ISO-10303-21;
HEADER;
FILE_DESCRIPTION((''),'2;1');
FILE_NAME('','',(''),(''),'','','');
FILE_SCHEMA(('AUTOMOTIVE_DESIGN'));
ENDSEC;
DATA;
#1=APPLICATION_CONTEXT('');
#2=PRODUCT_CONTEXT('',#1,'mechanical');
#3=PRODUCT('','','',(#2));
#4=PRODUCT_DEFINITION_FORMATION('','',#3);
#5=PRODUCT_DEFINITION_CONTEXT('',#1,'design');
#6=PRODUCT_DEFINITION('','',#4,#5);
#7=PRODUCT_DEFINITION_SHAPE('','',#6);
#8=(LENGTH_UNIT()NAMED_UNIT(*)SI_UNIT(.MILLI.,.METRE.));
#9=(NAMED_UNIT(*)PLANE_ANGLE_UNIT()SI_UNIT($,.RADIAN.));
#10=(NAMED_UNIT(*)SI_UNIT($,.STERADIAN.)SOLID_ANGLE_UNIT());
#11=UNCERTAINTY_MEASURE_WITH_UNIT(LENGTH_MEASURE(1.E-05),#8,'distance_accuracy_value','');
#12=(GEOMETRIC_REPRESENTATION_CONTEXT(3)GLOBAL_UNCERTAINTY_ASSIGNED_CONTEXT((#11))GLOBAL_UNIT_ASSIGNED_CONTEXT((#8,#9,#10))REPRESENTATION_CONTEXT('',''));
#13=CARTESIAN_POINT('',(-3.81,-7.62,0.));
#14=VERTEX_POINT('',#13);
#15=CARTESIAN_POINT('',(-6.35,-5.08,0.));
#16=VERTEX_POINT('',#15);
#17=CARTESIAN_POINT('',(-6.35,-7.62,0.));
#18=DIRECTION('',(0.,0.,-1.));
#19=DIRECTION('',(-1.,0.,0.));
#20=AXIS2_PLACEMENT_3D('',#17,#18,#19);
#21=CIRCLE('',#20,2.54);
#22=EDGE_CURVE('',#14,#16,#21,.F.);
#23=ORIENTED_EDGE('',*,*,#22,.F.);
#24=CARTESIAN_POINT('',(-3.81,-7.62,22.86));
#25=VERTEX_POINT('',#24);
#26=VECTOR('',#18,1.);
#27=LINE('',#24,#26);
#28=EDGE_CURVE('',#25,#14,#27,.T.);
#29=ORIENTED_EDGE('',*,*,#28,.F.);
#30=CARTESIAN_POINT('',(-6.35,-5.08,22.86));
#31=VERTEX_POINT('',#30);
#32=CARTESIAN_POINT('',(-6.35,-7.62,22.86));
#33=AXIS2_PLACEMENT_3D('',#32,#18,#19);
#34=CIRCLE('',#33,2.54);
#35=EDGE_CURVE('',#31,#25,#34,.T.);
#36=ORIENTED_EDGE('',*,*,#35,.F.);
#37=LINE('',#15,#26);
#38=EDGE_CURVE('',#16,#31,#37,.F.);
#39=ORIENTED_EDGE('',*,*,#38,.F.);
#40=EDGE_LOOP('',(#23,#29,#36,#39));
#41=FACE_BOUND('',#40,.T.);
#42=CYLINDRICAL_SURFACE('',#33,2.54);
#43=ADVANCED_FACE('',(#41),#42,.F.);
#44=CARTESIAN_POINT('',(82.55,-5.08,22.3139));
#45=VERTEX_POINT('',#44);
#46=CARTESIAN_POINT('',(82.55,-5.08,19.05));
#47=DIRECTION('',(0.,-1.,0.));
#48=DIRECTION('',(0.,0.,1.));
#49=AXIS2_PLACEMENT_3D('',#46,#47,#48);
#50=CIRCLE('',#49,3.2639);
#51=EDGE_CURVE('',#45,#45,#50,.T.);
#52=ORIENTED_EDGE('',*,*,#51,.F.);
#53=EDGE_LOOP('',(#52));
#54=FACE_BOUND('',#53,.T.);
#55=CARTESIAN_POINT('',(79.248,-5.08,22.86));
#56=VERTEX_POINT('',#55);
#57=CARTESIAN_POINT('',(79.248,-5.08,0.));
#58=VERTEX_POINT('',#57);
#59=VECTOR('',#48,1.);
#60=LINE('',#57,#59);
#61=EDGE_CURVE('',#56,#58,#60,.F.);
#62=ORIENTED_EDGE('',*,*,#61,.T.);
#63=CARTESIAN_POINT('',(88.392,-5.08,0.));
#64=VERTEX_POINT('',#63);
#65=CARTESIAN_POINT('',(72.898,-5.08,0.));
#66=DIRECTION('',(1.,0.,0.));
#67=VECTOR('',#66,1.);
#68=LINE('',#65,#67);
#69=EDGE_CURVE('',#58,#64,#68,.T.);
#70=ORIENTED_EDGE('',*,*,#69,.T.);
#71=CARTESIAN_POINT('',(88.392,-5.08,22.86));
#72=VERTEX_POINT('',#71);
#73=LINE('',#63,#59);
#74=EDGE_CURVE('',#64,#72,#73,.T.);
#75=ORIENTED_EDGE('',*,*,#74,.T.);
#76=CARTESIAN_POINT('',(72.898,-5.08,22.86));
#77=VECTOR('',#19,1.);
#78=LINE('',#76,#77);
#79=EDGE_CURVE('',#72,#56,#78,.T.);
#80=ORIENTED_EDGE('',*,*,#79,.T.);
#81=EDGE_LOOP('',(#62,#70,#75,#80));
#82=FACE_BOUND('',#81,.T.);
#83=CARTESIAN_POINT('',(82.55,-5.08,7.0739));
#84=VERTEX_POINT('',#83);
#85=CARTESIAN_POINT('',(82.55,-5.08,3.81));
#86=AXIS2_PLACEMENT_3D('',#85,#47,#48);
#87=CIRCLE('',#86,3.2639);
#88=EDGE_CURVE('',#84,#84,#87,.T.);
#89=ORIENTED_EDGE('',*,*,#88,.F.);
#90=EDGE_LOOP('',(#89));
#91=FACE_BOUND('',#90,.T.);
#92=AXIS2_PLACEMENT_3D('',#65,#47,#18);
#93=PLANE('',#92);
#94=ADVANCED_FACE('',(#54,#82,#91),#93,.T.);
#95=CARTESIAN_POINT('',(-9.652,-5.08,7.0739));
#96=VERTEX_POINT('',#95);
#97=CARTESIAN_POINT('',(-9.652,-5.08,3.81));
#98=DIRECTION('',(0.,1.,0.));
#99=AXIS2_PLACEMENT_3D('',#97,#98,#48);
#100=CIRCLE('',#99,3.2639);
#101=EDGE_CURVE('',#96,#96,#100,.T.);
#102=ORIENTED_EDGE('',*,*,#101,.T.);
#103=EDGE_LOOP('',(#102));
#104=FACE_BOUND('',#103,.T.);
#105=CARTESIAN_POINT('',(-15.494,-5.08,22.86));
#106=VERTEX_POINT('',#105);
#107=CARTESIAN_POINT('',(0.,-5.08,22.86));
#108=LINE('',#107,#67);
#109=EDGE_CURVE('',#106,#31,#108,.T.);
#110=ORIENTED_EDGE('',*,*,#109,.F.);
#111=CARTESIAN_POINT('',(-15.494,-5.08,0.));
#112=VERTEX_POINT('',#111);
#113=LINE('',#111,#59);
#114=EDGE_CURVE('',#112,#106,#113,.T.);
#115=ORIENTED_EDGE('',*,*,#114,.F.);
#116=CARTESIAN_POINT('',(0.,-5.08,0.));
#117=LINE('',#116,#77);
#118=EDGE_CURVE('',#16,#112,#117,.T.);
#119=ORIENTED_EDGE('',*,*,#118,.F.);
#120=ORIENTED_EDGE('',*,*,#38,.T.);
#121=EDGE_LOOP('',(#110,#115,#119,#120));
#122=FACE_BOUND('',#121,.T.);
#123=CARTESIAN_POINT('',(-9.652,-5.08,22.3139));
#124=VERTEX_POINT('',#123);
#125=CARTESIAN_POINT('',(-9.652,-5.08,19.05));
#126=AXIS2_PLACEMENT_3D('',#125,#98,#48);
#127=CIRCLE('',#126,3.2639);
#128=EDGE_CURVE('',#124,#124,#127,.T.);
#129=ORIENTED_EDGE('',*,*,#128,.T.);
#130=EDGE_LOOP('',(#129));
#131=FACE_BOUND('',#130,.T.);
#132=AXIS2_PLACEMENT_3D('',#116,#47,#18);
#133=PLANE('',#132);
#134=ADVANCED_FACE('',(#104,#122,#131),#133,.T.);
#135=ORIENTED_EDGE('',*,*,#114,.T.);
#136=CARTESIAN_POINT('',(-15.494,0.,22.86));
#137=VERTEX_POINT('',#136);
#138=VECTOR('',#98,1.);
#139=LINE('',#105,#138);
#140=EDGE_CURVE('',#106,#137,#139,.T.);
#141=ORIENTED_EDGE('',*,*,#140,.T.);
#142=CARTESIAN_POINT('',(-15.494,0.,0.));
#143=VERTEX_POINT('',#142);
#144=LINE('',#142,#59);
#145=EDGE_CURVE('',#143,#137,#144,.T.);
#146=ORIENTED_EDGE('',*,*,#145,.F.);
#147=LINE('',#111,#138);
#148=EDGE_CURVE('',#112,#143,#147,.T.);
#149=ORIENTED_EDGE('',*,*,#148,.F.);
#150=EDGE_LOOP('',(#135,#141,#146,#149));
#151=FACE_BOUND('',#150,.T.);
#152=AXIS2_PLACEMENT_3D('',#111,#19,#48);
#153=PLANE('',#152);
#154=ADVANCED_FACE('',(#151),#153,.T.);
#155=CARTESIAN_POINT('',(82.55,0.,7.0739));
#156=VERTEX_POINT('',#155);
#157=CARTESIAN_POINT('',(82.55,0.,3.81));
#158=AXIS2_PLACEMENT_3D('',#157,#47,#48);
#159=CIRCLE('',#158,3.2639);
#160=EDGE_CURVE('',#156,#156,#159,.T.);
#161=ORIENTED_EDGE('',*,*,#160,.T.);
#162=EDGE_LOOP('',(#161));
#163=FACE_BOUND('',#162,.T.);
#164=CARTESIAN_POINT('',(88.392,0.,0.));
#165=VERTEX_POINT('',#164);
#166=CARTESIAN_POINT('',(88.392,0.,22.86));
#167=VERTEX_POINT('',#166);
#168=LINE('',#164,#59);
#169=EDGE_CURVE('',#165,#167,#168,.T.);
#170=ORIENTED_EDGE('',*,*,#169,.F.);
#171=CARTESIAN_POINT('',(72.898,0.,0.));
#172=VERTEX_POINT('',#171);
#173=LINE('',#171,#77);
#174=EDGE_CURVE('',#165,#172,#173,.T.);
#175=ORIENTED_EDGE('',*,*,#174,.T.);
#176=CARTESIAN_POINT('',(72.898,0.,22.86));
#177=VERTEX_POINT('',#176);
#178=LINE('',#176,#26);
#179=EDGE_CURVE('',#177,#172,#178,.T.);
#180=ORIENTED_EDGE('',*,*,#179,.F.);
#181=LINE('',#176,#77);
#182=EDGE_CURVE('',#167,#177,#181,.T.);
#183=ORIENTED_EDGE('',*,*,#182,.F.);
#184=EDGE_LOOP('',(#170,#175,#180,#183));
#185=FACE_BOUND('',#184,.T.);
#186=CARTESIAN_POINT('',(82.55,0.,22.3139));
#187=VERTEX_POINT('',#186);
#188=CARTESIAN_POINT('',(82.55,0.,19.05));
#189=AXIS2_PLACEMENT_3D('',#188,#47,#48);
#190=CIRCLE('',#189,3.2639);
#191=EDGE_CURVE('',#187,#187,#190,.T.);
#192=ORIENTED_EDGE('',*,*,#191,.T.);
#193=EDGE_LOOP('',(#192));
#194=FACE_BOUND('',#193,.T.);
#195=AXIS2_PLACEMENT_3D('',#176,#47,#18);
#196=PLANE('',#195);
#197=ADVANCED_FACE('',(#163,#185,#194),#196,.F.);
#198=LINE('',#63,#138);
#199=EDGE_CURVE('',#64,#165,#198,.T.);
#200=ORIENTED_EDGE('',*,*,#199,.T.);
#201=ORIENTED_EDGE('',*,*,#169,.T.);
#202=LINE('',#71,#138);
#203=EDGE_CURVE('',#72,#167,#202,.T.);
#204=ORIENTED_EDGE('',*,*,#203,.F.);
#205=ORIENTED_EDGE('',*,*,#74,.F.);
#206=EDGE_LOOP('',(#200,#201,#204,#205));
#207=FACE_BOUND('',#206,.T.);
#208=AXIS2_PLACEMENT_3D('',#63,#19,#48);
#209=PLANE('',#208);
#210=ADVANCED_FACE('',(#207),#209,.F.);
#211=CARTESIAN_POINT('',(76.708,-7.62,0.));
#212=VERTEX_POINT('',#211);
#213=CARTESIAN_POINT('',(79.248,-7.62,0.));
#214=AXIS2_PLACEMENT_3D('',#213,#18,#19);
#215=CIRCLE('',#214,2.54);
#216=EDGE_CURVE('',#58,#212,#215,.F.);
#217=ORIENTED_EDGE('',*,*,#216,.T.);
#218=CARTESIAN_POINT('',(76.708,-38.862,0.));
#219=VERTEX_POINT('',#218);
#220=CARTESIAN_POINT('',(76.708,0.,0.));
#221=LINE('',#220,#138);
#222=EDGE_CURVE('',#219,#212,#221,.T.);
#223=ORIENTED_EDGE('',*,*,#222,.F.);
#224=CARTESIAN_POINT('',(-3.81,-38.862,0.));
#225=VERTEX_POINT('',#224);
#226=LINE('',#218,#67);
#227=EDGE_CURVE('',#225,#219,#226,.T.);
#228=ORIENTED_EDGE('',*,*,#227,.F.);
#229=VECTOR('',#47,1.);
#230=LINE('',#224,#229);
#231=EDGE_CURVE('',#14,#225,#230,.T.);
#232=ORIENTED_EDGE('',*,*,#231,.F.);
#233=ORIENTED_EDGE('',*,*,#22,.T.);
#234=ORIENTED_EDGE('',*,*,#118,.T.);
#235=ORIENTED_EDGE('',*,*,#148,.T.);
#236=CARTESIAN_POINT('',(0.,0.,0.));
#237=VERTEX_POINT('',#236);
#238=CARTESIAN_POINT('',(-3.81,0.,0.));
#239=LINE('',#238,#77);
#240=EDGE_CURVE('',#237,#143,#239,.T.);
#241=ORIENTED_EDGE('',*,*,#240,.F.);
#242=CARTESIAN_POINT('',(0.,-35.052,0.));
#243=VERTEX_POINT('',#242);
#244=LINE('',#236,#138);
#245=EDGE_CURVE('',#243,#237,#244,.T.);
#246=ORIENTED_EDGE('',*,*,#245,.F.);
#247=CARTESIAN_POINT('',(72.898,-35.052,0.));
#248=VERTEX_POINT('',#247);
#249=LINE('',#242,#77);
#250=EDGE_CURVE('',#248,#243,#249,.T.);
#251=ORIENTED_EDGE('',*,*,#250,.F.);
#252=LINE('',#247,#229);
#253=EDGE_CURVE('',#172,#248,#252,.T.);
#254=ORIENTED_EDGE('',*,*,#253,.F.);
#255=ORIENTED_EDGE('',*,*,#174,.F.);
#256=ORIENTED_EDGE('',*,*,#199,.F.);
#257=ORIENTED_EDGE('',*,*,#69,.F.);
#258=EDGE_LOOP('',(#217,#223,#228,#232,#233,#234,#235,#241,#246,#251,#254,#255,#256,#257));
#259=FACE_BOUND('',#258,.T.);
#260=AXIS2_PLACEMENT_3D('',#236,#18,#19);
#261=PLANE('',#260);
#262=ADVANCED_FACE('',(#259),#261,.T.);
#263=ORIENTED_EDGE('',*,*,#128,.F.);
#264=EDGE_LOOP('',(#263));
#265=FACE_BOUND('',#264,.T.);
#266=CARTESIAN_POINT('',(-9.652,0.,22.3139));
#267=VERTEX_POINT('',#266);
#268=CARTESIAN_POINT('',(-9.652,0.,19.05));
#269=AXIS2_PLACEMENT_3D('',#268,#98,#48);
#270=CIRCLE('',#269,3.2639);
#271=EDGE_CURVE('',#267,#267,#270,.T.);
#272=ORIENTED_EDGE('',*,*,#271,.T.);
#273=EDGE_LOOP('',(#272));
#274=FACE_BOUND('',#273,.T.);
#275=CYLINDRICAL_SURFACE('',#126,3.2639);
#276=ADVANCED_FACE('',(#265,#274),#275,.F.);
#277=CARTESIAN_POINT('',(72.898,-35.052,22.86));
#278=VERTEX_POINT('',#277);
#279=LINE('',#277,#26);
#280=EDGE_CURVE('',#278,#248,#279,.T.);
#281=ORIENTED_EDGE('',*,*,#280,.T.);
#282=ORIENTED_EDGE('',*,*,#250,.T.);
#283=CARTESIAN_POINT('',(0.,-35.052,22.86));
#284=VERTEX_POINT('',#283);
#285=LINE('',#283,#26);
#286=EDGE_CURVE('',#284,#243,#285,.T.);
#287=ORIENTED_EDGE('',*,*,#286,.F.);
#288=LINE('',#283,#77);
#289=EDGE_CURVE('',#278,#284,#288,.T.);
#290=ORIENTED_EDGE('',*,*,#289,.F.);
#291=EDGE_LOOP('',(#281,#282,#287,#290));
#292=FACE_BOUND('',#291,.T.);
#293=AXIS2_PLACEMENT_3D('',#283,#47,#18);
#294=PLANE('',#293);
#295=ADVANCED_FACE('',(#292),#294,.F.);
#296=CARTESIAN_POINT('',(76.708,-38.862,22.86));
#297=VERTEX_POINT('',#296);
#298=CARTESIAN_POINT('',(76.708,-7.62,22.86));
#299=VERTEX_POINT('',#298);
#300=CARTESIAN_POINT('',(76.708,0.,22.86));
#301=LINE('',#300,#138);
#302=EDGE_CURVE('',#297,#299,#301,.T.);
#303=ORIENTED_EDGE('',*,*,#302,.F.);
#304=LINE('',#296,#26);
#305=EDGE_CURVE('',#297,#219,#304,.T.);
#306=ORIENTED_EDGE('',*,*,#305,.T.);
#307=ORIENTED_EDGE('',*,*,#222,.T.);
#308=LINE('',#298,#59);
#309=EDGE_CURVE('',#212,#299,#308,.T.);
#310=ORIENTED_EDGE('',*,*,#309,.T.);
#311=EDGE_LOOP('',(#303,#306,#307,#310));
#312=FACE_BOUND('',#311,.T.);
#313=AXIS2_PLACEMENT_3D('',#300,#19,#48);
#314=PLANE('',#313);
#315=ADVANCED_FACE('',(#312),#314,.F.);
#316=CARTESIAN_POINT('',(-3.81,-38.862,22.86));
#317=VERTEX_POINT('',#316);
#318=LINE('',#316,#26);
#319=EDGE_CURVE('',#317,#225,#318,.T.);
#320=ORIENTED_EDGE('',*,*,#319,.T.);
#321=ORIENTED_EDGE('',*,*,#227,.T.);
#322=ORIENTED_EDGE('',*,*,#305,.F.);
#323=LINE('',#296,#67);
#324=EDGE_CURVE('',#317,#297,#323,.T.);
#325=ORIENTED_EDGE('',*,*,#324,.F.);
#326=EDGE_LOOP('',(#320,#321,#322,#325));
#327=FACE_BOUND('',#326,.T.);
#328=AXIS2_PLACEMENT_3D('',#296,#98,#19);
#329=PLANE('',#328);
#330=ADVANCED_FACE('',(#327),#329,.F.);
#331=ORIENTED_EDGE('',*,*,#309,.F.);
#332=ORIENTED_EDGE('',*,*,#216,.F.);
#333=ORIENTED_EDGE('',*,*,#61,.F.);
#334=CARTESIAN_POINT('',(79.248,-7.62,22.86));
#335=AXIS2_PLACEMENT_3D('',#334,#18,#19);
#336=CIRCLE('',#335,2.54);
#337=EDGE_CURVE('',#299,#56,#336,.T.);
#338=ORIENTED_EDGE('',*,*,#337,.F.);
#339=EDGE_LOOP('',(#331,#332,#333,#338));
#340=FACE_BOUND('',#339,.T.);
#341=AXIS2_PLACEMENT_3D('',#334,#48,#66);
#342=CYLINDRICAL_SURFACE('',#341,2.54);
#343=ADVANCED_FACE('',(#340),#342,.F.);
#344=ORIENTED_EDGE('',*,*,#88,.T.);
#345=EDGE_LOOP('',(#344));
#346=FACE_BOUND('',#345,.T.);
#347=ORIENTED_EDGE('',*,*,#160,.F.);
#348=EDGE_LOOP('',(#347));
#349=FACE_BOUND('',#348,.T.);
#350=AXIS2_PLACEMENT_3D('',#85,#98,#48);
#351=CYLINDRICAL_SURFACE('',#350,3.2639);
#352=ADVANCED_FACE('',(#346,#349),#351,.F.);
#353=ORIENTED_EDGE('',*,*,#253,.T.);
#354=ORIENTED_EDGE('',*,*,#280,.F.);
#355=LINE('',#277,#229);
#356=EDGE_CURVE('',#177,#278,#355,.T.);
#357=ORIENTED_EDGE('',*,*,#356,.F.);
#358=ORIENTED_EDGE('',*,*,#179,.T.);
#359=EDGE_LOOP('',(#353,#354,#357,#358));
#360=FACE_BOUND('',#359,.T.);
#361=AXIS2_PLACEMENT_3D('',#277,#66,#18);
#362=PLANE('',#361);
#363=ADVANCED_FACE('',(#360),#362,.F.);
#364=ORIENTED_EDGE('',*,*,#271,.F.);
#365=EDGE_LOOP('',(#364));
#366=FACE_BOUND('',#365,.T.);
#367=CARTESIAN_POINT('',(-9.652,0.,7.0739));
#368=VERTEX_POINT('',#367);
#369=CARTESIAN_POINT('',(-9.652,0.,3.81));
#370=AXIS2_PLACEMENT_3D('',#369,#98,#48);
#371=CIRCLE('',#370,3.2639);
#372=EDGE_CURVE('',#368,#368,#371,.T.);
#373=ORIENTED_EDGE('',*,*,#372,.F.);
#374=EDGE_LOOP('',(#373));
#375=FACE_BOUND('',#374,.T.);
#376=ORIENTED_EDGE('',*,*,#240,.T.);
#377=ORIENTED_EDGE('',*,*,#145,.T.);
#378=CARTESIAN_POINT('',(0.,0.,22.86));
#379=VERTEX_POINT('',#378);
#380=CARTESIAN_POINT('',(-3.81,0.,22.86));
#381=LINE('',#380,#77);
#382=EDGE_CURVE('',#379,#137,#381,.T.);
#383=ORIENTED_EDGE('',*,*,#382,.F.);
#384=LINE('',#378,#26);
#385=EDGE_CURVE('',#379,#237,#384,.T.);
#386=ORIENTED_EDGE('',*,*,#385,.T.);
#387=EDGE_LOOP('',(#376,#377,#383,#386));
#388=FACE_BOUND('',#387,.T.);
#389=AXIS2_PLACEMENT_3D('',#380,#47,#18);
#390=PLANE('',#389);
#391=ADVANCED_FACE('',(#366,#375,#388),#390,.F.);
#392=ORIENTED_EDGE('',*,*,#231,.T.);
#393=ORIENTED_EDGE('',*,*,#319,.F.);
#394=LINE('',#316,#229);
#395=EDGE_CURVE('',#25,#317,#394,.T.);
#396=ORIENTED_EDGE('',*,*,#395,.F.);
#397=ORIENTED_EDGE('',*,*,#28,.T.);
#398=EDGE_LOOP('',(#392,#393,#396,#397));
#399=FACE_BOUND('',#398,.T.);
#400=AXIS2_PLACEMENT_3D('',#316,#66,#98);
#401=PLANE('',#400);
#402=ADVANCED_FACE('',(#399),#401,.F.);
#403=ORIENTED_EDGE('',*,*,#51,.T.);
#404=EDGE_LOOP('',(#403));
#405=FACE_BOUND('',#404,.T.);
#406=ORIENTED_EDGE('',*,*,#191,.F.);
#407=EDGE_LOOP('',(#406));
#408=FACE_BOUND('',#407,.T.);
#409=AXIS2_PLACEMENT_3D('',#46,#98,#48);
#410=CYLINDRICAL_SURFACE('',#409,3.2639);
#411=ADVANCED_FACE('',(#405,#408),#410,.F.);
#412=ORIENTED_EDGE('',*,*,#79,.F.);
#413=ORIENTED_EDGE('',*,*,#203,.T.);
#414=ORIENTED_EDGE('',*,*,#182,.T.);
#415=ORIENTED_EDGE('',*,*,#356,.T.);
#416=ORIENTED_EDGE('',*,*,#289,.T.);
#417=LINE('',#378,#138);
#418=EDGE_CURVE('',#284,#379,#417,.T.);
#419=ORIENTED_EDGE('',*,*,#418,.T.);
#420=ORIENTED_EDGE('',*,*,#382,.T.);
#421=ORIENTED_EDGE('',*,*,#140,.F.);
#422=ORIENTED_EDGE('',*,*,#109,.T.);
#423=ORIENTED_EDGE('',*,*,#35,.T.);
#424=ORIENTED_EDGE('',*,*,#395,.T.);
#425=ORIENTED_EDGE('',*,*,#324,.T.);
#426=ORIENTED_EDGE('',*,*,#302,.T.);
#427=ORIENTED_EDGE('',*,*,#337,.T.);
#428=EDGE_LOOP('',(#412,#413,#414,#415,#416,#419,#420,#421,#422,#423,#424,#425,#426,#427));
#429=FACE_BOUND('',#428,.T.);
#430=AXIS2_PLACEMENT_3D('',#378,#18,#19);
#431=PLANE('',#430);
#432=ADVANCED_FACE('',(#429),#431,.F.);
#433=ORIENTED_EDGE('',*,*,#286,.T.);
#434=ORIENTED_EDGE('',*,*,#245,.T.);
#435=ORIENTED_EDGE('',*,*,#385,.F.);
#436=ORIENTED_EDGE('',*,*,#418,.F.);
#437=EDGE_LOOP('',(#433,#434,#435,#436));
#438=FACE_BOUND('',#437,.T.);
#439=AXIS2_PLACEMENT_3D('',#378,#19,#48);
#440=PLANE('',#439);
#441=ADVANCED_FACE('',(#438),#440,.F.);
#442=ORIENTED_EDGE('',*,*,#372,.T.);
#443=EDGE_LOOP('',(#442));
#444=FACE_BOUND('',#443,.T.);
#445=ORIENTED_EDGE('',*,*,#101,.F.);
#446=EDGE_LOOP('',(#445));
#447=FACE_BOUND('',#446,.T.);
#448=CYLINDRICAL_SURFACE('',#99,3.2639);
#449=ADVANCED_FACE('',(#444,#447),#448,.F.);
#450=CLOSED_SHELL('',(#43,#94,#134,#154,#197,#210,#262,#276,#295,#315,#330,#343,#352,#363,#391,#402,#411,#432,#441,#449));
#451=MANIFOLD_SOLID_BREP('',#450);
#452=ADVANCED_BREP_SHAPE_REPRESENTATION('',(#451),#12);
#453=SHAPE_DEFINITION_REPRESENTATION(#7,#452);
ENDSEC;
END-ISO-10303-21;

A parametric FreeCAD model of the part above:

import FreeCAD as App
import Part
import Sketcher
from FreeCAD import Vector
Q = App.Units.Quantity


def edges_at(feature, points):
    """Names of the edges that pass closest to the given points."""
    edges = feature.Shape.Edges
    near = lambda p: min(range(len(edges)), key=lambda i: edges[i].distToShape(Part.Vertex(*p))[0])
    return sorted({f"Edge{near(p) + 1}" for p in points})


def add_polygon(sketch, points):
    """Adds a closed chain of lines whose ends are joined by coincident constraints."""
    first, n = sketch.GeometryCount, len(points)
    for a, b in zip(points, points[1:] + points[:1]):
        sketch.addGeometry(Part.LineSegment(App.Vector(*a, 0), App.Vector(*b, 0)), False)
    for i in range(n):
        sketch.addConstraint(Sketcher.Constraint("Coincident", first + i, 2, first + (i + 1) % n, 1))

doc = App.newDocument("Part")
body = doc.addObject("PartDesign::Body", "Body")

# Sketch on XY plane
sketch1 = body.newObject("Sketcher::SketchObject", "Sketch")
sketch1.AttachmentSupport = (doc.getObject("XY_Plane"), [""])
sketch1.MapMode = "FlatFace"
add_polygon(sketch1, [(0, -35.1), (0, 0), (-3.8, 0), (-3.8, -38.9), (76.7, -38.9), (76.7, 0), (72.9, 0), (72.9, -35.1)])  # lines 0-7
sketch1.addConstraint([
    Sketcher.Constraint("Vertical", 0),
    Sketcher.Constraint("Horizontal", 1),
    Sketcher.Constraint("Vertical", 2),
    Sketcher.Constraint("Horizontal", 3),
    Sketcher.Constraint("Vertical", 4),
    Sketcher.Constraint("Horizontal", 5),
    Sketcher.Constraint("Vertical", 6),
    Sketcher.Constraint("Horizontal", 7),
    Sketcher.Constraint("Coincident", 0, 2, -1, 1),
    Sketcher.Constraint("PointOnObject", 4, 2, -1),
    Sketcher.Constraint("Equal", 1, 5),
    Sketcher.Constraint("DistanceX", 1, 2, 1, 1, Q("0.15 in")),
    Sketcher.Constraint("DistanceX", 3, 1, 3, 2, Q("3.17 in")),
    Sketcher.Constraint("DistanceY", 0, 1, 0, 2, Q("1.38 in")),
    Sketcher.Constraint("DistanceY", 2, 2, 2, 1, Q("1.53 in")),
])
pad1 = body.newObject("PartDesign::Pad", "Pad")
pad1.Profile = sketch1
pad1.Length = Q("0.9 in")

# Sketch on XZ plane
sketch2 = body.newObject("Sketcher::SketchObject", "Sketch001")
sketch2.AttachmentSupport = (doc.getObject("XZ_Plane"), [""])
sketch2.MapMode = "FlatFace"
add_polygon(sketch2, [(-15.5, 0), (-15.5, 22.9), (0, 22.9), (0, 0)])  # lines 0-3
sketch2.addGeometry(Part.Circle(Vector(-9.7, 19.1, 0), Vector(0, 0, 1), 3.3), False)  # 4
sketch2.addGeometry(Part.Circle(Vector(-9.7, 3.8, 0), Vector(0, 0, 1), 3.3), False)  # 5
sketch2.addConstraint([
    Sketcher.Constraint("Vertical", 0),
    Sketcher.Constraint("Horizontal", 1),
    Sketcher.Constraint("Vertical", 2),
    Sketcher.Constraint("Horizontal", 3),
    Sketcher.Constraint("Coincident", 2, 2, -1, 1),
    Sketcher.Constraint("Equal", 4, 5),
    Sketcher.Constraint("Vertical", 4, 3, 5, 3),
    Sketcher.Constraint("Diameter", 4, Q("0.257 in")),
    Sketcher.Constraint("DistanceY", 0, 1, 0, 2, Q("0.9 in")),
    Sketcher.Constraint("DistanceX", 1, 1, 1, 2, Q("0.61 in")),
    Sketcher.Constraint("DistanceY", 5, 3, 4, 3, Q("0.6 in")),
    Sketcher.Constraint("DistanceX", 4, 3, -1, 1, Q("0.38 in")),
    Sketcher.Constraint("DistanceY", -1, 1, 4, 3, Q("0.75 in")),
])
pad2 = body.newObject("PartDesign::Pad", "Pad001")
pad2.Profile = sketch2
pad2.Length = Q("0.2 in")
doc.recompute()

datumplane = body.newObject("PartDesign::Plane", "DatumPlane")
datumplane.AttachmentSupport = (doc.getObject("YZ_Plane"), [""])
datumplane.MapMode = "FlatFace"
datumplane.AttachmentOffset = App.Placement(Vector(0, 0, 1.435 * 25.4), App.Rotation())
mirrored = body.newObject("PartDesign::Mirrored", "Mirrored")
mirrored.Originals = [pad2]
mirrored.MirrorPlane = (datumplane, [""])
body.Tip = mirrored
doc.recompute()

fillet = body.newObject("PartDesign::Fillet", "Fillet")
fillet.Base = (mirrored, edges_at(mirrored, [(-3.81, -5.08, 11.43), (76.708, -5.08, 11.43)]))
fillet.Radius = Q("0.1 in")

doc.recompute()
